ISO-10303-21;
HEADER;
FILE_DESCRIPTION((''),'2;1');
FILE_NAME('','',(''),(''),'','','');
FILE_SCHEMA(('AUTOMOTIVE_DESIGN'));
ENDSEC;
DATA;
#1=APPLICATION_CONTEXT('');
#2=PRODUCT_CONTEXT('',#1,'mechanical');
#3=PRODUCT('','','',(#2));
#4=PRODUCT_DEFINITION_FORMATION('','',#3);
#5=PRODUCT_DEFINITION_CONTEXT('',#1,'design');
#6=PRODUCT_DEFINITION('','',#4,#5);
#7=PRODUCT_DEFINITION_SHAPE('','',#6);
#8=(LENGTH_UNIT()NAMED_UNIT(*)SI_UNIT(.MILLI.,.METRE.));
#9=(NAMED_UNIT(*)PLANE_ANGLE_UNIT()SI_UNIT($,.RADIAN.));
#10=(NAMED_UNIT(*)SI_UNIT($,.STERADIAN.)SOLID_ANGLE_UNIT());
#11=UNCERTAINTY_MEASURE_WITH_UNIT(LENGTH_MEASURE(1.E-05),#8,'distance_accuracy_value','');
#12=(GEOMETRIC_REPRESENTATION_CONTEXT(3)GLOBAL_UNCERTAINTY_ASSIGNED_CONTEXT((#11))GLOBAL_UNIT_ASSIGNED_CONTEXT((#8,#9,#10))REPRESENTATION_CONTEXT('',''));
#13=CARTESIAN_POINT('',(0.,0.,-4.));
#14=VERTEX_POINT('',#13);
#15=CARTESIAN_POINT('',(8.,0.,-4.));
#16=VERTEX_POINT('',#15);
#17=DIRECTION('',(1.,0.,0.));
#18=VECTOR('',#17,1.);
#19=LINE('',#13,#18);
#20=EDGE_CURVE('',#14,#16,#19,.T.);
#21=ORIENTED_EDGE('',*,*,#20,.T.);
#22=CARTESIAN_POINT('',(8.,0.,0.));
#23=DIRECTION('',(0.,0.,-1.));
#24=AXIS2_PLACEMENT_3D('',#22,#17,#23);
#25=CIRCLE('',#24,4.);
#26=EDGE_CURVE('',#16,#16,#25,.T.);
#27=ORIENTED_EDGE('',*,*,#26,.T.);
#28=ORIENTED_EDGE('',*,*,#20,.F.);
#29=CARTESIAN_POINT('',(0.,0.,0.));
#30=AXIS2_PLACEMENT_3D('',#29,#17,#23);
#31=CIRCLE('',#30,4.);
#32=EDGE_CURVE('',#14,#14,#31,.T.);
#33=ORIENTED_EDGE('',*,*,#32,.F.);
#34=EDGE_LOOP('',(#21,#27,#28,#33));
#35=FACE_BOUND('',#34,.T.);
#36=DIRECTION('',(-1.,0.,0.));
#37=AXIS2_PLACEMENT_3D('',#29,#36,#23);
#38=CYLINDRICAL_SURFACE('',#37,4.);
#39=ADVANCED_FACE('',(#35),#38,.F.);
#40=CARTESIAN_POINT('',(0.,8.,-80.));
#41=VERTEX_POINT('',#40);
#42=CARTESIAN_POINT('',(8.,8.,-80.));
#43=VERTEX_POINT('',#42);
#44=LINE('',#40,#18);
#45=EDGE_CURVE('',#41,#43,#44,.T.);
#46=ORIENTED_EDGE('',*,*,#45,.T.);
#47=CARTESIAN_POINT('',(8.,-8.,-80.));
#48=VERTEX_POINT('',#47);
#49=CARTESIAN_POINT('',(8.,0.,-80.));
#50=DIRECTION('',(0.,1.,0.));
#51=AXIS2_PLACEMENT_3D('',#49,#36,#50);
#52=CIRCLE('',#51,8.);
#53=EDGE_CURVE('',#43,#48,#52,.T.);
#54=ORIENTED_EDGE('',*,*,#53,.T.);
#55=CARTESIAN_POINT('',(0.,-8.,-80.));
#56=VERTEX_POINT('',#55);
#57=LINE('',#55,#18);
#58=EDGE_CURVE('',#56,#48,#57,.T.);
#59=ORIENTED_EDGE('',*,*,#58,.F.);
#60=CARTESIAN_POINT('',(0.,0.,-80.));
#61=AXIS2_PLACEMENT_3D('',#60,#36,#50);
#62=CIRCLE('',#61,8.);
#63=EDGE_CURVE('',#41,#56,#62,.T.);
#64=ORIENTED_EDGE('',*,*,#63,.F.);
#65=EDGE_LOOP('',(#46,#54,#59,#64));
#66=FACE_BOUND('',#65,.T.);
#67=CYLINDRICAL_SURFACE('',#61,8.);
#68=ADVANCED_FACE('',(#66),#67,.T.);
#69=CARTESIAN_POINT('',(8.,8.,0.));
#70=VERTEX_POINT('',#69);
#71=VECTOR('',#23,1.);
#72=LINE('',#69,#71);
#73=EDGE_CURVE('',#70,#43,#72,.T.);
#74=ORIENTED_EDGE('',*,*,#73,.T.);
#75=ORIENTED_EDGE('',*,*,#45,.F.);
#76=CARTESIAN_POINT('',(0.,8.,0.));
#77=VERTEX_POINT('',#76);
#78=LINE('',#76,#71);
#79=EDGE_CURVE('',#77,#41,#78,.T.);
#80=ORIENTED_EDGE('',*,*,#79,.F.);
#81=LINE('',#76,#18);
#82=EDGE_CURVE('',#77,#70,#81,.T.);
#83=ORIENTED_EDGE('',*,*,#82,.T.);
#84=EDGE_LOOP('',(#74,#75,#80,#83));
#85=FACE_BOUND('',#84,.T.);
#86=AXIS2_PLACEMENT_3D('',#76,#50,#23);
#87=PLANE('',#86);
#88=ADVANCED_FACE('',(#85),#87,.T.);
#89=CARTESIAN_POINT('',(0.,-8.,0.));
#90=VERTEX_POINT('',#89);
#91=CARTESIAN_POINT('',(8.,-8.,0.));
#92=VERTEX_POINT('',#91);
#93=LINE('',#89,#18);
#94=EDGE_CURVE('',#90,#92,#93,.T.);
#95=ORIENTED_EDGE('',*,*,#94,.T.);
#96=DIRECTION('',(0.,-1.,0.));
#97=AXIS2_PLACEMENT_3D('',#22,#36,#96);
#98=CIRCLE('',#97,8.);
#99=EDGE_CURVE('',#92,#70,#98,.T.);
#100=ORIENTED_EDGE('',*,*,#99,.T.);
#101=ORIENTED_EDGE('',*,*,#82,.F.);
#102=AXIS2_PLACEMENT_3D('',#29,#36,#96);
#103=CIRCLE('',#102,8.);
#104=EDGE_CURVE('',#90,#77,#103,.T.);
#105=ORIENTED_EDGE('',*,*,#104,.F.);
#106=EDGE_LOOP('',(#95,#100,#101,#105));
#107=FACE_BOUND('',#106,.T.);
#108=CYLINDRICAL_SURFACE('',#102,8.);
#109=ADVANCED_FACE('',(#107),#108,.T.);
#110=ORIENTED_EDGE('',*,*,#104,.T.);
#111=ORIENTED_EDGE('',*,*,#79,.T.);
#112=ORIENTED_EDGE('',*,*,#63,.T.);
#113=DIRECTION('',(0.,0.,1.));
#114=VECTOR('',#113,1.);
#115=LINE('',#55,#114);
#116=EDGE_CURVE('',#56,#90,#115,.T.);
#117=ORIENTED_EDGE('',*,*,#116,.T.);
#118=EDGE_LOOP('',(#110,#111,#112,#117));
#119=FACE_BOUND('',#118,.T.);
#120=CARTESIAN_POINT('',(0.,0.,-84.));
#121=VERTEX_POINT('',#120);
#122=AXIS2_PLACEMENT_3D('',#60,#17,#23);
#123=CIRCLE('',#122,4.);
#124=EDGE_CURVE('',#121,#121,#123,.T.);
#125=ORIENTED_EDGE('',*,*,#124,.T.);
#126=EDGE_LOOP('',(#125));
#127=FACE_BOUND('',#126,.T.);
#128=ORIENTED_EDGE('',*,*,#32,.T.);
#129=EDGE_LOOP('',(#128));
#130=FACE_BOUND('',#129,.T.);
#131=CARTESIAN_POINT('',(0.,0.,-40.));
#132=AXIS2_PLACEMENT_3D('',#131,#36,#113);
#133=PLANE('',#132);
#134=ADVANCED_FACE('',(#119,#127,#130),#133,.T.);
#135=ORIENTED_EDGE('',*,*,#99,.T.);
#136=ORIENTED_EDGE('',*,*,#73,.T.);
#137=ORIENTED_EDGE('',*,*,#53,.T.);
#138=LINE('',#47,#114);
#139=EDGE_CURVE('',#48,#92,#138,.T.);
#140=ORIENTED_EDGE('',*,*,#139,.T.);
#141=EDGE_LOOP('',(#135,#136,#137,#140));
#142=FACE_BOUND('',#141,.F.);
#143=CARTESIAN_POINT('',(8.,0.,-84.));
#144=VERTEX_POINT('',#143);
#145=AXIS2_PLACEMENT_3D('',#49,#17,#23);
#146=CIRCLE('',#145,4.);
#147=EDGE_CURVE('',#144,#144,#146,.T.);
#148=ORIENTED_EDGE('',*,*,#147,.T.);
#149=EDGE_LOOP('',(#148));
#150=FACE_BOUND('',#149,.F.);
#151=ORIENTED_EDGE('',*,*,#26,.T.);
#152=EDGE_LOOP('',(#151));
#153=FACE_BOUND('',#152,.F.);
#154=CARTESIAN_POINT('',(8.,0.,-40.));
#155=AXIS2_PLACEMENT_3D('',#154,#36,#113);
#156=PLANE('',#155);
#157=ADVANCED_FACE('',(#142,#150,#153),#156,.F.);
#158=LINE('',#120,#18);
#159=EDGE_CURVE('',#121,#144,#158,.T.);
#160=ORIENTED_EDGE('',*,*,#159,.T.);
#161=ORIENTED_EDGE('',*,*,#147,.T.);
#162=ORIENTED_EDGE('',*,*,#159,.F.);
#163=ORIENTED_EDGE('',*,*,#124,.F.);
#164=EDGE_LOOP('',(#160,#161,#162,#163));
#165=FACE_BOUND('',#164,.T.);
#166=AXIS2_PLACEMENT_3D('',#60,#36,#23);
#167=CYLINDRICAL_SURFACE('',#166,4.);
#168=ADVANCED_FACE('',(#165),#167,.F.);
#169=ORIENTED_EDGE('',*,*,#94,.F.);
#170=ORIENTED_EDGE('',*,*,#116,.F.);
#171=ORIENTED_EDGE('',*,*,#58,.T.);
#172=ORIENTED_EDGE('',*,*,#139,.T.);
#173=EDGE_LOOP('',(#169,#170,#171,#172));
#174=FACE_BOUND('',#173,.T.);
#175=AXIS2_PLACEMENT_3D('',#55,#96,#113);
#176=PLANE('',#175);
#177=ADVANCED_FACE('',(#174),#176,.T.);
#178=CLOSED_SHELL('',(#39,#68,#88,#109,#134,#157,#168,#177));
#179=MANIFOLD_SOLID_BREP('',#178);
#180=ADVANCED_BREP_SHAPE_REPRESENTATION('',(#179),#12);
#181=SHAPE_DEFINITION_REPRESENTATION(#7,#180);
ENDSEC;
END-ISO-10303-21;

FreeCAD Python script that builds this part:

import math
import FreeCAD as App
import Part
import Sketcher
from FreeCAD import Vector
Q = App.Units.Quantity

doc = App.newDocument("Part")
body = doc.addObject("PartDesign::Body", "Body")

sketch1 = body.newObject("Sketcher::SketchObject", "Sketch")
sketch1.AttachmentSupport = (doc.getObject("YZ_Plane"), [""])
sketch1.MapMode = "FlatFace"
sketch1.addGeometry(Part.LineSegment(Vector(8, -80, 0), Vector(8, 0, 0)), False)
sketch1.addGeometry(Part.ArcOfCircle(Part.Circle(Vector(0, 0, 0), Vector(0, 0, 1), 8), math.radians(0), math.radians(180)), False)
sketch1.addGeometry(Part.LineSegment(Vector(-8, 0, 0), Vector(-8, -80, 0)), False)
sketch1.addGeometry(Part.ArcOfCircle(Part.Circle(Vector(0, -80, 0), Vector(0, 0, 1), 8), math.radians(180), math.radians(360)), False)
sketch1.addGeometry(Part.Circle(Vector(0, -80, 0), Vector(0, 0, 1), 4), False)
sketch1.addGeometry(Part.Circle(Vector(0, 0, 0), Vector(0, 0, 1), 4), False)
sketch1.addConstraint(Sketcher.Constraint("Tangent", 0, 2, 1, 1))
sketch1.addConstraint(Sketcher.Constraint("Tangent", 1, 2, 2, 1))
sketch1.addConstraint(Sketcher.Constraint("Tangent", 2, 2, 3, 1))
sketch1.addConstraint(Sketcher.Constraint("Tangent", 3, 2, 0, 1))
sketch1.addConstraint(Sketcher.Constraint("Vertical", 0))
sketch1.addConstraint(Sketcher.Constraint("Vertical", 2))
sketch1.addConstraint(Sketcher.Constraint("Coincident", 1, 3, -1, 1))
sketch1.addConstraint(Sketcher.Constraint("Coincident", 5, 3, -1, 1))
sketch1.addConstraint(Sketcher.Constraint("Coincident", 4, 3, 3, 3))
sketch1.addConstraint(Sketcher.Constraint("Equal", 4, 5))
sketch1.addConstraint(Sketcher.Constraint("Diameter", 4, Q("8 mm")))
sketch1.addConstraint(Sketcher.Constraint("Radius", 1, Q("8 mm")))
sketch1.addConstraint(Sketcher.Constraint("DistanceY", 0, 1, 0, 2, Q("80 mm")))
pad1 = body.newObject("PartDesign::Pad", "Pad")
pad1.Profile = sketch1
pad1.Length = 8

doc.recompute()
